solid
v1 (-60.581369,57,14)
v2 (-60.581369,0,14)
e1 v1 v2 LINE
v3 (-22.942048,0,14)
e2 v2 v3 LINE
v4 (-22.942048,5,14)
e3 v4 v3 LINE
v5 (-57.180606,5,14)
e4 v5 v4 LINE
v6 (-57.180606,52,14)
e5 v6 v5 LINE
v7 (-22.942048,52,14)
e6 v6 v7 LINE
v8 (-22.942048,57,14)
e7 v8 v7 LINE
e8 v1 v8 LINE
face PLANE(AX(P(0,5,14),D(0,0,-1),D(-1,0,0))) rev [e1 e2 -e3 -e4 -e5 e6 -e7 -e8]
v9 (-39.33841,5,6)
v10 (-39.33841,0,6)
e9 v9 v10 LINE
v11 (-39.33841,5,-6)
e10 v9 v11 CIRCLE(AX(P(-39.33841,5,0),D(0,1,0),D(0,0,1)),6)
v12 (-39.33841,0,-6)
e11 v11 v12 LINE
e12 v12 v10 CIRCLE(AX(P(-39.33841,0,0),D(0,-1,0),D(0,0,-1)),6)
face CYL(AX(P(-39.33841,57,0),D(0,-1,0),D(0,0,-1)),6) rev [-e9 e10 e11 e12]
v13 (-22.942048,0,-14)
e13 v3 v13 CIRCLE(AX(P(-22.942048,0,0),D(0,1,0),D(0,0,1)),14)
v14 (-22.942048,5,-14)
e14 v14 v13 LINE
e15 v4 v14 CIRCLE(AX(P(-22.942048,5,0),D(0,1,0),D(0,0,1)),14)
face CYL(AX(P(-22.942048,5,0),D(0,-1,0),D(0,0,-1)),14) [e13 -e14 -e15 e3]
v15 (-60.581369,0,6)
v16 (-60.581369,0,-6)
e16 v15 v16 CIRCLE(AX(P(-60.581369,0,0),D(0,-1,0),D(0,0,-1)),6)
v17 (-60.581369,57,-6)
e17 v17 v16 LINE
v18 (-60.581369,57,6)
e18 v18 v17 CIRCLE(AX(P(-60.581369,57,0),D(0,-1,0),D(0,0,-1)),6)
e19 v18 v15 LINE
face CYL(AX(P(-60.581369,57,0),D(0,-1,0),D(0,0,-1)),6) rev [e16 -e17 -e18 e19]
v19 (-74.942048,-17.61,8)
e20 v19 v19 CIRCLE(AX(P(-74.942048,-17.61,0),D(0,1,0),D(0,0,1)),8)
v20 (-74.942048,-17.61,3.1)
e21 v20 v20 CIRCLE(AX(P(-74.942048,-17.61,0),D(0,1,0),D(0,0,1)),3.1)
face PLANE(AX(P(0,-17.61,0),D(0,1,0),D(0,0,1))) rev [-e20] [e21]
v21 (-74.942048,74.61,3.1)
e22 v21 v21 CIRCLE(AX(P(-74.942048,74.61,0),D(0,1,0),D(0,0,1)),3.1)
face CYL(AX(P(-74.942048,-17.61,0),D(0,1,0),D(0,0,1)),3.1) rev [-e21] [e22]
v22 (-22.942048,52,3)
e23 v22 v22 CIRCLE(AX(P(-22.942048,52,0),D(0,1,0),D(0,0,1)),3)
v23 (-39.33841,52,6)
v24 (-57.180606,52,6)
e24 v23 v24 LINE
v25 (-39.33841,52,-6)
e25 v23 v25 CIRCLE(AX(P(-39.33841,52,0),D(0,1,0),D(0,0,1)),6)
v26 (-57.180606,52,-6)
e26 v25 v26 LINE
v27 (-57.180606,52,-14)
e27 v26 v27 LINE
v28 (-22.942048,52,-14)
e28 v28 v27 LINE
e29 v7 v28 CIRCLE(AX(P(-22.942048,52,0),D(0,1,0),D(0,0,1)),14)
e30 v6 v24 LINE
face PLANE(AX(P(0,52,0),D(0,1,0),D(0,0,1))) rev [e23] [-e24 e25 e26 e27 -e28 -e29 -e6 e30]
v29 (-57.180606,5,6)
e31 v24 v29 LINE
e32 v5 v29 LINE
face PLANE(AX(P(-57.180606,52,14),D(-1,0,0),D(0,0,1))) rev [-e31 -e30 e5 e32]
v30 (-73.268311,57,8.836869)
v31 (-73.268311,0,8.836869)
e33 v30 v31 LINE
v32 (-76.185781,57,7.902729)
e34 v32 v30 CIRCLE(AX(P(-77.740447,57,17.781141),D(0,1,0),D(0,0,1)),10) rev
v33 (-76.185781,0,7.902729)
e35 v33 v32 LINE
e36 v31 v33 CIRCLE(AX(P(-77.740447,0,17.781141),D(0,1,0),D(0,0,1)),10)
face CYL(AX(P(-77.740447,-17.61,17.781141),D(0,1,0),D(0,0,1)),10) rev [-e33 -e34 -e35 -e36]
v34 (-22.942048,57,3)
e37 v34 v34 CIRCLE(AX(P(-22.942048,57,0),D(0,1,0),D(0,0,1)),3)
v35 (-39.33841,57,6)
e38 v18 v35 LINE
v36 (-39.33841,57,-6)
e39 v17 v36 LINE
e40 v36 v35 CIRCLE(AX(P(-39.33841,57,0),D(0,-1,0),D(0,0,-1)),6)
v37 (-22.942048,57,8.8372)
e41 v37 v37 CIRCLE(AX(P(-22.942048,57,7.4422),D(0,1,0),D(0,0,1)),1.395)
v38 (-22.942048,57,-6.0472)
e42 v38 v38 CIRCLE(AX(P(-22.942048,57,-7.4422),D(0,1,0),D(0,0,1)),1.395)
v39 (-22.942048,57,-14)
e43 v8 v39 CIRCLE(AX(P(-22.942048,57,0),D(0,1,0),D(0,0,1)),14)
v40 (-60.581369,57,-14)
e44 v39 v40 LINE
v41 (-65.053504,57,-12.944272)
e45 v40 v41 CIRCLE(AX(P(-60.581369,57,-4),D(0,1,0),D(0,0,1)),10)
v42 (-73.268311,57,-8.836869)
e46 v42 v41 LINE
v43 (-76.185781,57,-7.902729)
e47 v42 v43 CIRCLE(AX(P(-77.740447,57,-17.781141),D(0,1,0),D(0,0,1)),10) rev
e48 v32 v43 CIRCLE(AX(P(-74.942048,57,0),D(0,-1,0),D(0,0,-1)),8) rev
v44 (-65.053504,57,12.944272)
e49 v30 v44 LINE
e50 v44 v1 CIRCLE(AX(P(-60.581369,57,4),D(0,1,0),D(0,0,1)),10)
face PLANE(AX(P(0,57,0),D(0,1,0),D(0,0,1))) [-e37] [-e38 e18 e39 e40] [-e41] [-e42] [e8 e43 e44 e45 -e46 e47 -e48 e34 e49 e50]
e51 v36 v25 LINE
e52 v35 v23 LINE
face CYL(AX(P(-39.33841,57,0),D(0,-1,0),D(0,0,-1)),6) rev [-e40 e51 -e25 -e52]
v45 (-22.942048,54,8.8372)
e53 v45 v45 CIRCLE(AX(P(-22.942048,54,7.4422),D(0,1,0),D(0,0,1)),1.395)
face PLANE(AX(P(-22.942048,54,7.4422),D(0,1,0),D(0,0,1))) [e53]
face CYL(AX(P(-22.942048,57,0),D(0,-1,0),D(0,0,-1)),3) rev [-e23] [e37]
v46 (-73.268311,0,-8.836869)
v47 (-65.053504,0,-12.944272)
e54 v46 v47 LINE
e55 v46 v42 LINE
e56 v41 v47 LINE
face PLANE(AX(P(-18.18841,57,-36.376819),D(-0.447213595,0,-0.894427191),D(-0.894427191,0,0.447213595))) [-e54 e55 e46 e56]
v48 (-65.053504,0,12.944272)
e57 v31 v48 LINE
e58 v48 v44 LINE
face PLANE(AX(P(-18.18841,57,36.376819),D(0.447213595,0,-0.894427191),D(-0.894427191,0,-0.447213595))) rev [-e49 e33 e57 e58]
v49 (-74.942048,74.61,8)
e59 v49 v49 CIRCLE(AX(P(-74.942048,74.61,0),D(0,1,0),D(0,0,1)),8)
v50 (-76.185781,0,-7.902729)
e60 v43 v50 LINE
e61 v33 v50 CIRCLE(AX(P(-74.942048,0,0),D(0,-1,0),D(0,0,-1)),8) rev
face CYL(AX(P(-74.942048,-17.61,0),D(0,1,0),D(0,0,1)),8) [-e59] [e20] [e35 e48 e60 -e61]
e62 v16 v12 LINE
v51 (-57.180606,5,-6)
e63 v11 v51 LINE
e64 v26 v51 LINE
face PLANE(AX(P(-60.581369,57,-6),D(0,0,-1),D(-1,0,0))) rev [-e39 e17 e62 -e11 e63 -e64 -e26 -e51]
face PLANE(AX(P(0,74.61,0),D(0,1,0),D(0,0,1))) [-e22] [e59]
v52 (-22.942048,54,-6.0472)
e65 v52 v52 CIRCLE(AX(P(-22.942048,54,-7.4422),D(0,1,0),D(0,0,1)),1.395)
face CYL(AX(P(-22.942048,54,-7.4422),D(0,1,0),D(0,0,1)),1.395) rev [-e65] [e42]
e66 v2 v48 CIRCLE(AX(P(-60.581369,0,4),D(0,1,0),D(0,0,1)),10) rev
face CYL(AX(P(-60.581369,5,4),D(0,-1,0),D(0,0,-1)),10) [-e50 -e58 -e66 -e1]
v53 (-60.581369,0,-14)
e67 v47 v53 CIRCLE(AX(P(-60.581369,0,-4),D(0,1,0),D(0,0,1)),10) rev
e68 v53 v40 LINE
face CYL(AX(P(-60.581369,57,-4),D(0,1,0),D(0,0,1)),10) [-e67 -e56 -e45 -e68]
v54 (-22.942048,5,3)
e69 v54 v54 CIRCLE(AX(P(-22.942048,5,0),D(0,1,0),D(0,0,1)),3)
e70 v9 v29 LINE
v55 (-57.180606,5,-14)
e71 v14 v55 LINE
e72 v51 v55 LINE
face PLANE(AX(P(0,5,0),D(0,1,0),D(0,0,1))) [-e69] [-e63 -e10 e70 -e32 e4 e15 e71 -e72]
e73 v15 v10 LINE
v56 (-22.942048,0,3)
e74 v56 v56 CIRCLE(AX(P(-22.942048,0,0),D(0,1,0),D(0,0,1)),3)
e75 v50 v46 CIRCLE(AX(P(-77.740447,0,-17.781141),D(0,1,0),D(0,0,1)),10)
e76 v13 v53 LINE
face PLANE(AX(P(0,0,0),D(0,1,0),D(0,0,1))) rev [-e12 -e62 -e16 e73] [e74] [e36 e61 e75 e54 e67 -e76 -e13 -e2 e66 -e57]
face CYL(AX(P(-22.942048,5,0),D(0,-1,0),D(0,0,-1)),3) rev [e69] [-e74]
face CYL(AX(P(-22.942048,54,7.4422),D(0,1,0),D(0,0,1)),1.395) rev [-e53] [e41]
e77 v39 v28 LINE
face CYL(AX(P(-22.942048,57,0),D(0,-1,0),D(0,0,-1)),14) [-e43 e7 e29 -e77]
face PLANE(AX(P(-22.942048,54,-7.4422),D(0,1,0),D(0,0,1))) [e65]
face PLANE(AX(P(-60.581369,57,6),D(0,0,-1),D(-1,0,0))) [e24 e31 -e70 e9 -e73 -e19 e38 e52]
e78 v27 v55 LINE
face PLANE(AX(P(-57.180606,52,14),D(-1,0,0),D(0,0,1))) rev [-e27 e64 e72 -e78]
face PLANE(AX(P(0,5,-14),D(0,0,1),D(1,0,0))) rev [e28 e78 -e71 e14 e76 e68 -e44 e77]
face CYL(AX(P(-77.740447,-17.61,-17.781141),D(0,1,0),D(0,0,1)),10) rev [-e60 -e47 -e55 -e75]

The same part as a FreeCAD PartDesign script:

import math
import FreeCAD as App
import Part
import Sketcher
from FreeCAD import Vector
Q = App.Units.Quantity


def edges_at(feature, points):
    """Names of the edges that pass closest to the given points."""
    edges = feature.Shape.Edges
    near = lambda p: min(range(len(edges)), key=lambda i: edges[i].distToShape(Part.Vertex(*p))[0])
    return sorted({f"Edge{near(p) + 1}" for p in points})


def add_polygon(sketch, points):
    """Adds a closed chain of lines whose ends are joined by coincident constraints."""
    first, n = sketch.GeometryCount, len(points)
    for a, b in zip(points, points[1:] + points[:1]):
        sketch.addGeometry(Part.LineSegment(App.Vector(*a, 0), App.Vector(*b, 0)), False)
    for i in range(n):
        sketch.addConstraint(Sketcher.Constraint("Coincident", first + i, 2, first + (i + 1) % n, 1))

doc = App.newDocument("Part")
body = doc.addObject("PartDesign::Body", "Body")

# Sketch on XZ plane
sketch1 = body.newObject("Sketcher::SketchObject", "Sketch")
sketch1.AttachmentSupport = (doc.getObject("XZ_Plane"), [""])
sketch1.MapMode = "FlatFace"
sketch1.addGeometry([
    Part.LineSegment(Vector(-62.9, 14, 0), Vector(-22.9, 14, 0)),  # 0
    Part.ArcOfCircle(Part.Circle(Vector(-22.9, 0, 0), Vector(0, 0, 1), 14), math.radians(-90), math.radians(90)),  # 1
    Part.LineSegment(Vector(-22.9, -14, 0), Vector(-62.9, -14, 0)),  # 2
    Part.LineSegment(Vector(-62.9, -14, 0), Vector(-62.9, 14, 0)),  # 3
    Part.Circle(Vector(-22.9, 0, 0), Vector(0, 0, 1), 3),  # 4
], False)
sketch1.addConstraint([
    Sketcher.Constraint("Tangent", 0, 2, 1, 2),
    Sketcher.Constraint("Tangent", 1, 1, 2, 1),
    Sketcher.Constraint("Coincident", 2, 2, 3, 1),
    Sketcher.Constraint("Coincident", 3, 2, 0, 1),
    Sketcher.Constraint("Horizontal", 0),
    Sketcher.Constraint("Horizontal", 2),
    Sketcher.Constraint("Vertical", 3),
    Sketcher.Constraint("Coincident", 4, 3, 1, 3),
    Sketcher.Constraint("PointOnObject", 1, 3, -1),
    Sketcher.Constraint("Diameter", 4, Q("6 mm")),
    Sketcher.Constraint("Radius", 1, Q("14 mm")),
    Sketcher.Constraint("DistanceX", 0, 1, 0, 2, Q("40 mm")),
    Sketcher.Constraint("DistanceX", 1, 3, -1, 1, Q("22.942048 mm")),
])
pad1 = body.newObject("PartDesign::Pad", "Pad")
pad1.Profile = sketch1
pad1.Length = 5
pad1.Reversed = True

# Sketch on XZ plane
sketch2 = body.newObject("Sketcher::SketchObject", "Sketch001")
sketch2.AttachmentSupport = (doc.getObject("XZ_Plane"), [""])
sketch2.MapMode = "FlatFace"
sketch2.AttachmentOffset = App.Placement(Vector(0, 0, -5), App.Rotation())
add_polygon(sketch2, [(-63, -14), (-63, 14), (-57, 14), (-57, -14)])  # lines 0-3
sketch2.addConstraint([
    Sketcher.Constraint("Vertical", 0),
    Sketcher.Constraint("Horizontal", 1),
    Sketcher.Constraint("Vertical", 2),
    Sketcher.Constraint("Horizontal", 3),
    Sketcher.Constraint("DistanceY", 0, 1, 0, 2, Q("28 mm")),
    Sketcher.Constraint("DistanceY", -1, 1, 0, 2, Q("14 mm")),
    Sketcher.Constraint("DistanceX", 1, 1, 1, 2, Q("5.761443 mm")),
    Sketcher.Constraint("DistanceX", 0, 2, -1, 1, Q("62.942048 mm")),
])
pad2 = body.newObject("PartDesign::Pad", "Pad001")
pad2.Profile = sketch2
pad2.Length = 47
pad2.Reversed = True

# Sketch on XZ plane
sketch3 = body.newObject("Sketcher::SketchObject", "Sketch002")
sketch3.AttachmentSupport = (doc.getObject("XZ_Plane"), [""])
sketch3.MapMode = "FlatFace"
sketch3.AttachmentOffset = App.Placement(Vector(0, 0, -52), App.Rotation())
sketch3.addGeometry([
    Part.LineSegment(Vector(-22.9, -14, 0), Vector(-62.9, -14, 0)),  # 0
    Part.LineSegment(Vector(-62.9, -14, 0), Vector(-62.9, 14, 0)),  # 1
    Part.LineSegment(Vector(-62.9, 14, 0), Vector(-22.9, 14, 0)),  # 2
    Part.ArcOfCircle(Part.Circle(Vector(-22.9, 0, 0), Vector(0, 0, 1), 14), math.radians(-90), math.radians(90)),  # 3
    Part.Circle(Vector(-22.9, 0, 0), Vector(0, 0, 1), 3),  # 4
], False)
sketch3.addConstraint([
    Sketcher.Constraint("Coincident", 0, 2, 1, 1),
    Sketcher.Constraint("Coincident", 1, 2, 2, 1),
    Sketcher.Constraint("Tangent", 2, 2, 3, 2),
    Sketcher.Constraint("Tangent", 3, 1, 0, 1),
    Sketcher.Constraint("Horizontal", 0),
    Sketcher.Constraint("Vertical", 1),
    Sketcher.Constraint("Horizontal", 2),
    Sketcher.Constraint("Coincident", 4, 3, 3, 3),
    Sketcher.Constraint("PointOnObject", 3, 3, -1),
    Sketcher.Constraint("Diameter", 4, Q("6 mm")),
    Sketcher.Constraint("Radius", 3, Q("14 mm")),
    Sketcher.Constraint("DistanceX", 0, 2, 0, 1, Q("40 mm")),
    Sketcher.Constraint("DistanceX", 3, 3, -1, 1, Q("22.942048 mm")),
])
pad3 = body.newObject("PartDesign::Pad", "Pad002")
pad3.Profile = sketch3
pad3.Length = 5
pad3.Reversed = True
body2 = doc.addObject("PartDesign::Body", "Body001")

# Sketch on XZ plane
sketch4 = body2.newObject("Sketcher::SketchObject", "Sketch003")
sketch4.AttachmentSupport = (doc.getObject("XZ_Plane001"), [""])
sketch4.MapMode = "FlatFace"
sketch4.AttachmentOffset = App.Placement(Vector(0, 0, -57), App.Rotation())
sketch4.addGeometry([
    Part.Circle(Vector(-74.9, 0, 0), Vector(0, 0, 1), 8),
    Part.Circle(Vector(-74.9, 0, 0), Vector(0, 0, 1), 3.1),
], False)
sketch4.addConstraint([
    Sketcher.Constraint("Coincident", 1, 3, 0, 3),
    Sketcher.Constraint("PointOnObject", 0, 3, -1),
    Sketcher.Constraint("Diameter", 0, Q("16 mm")),
    Sketcher.Constraint("Diameter", 1, Q("6.2 mm")),
    Sketcher.Constraint("DistanceX", 0, 3, -1, 1, Q("74.942048 mm")),
])
pad4 = body2.newObject("PartDesign::Pad", "Pad003")
pad4.Profile = sketch4
pad4.Type = "TwoLengths"
pad4.Length = 17.61
pad4.Length2 = 74.61
pad4.Reversed = True
body.AllowCompound = True
doc.recompute()

boolean = body.newObject("PartDesign::Boolean", "Boolean")
boolean.Type = "Fuse"
boolean.addObjects([body2])

# Sketch on XZ plane
sketch5 = body.newObject("Sketcher::SketchObject", "Sketch004")
sketch5.AttachmentSupport = (doc.getObject("XZ_Plane"), [""])
sketch5.MapMode = "FlatFace"
sketch5.addGeometry([
    Part.LineSegment(Vector(-63, 14, 0), Vector(-75, 8, 0)),  # 0
    Part.ArcOfCircle(Part.Circle(Vector(-75, 0, 0), Vector(0, 0, 1), 8), math.radians(0), math.radians(90)),  # 1
    Part.ArcOfCircle(Part.Circle(Vector(-75, 0, 0), Vector(0, 0, 1), 8), math.radians(-90), math.radians(0)),  # 2
    Part.LineSegment(Vector(-75, -8, 0), Vector(-63, -14, 0)),  # 3
    Part.LineSegment(Vector(-63, -14, 0), Vector(-63, 14, 0)),  # 4
], False)
sketch5.addConstraint([
    Sketcher.Constraint("Coincident", 0, 2, 1, 2),
    Sketcher.Constraint("Tangent", 1, 1, 2, 2),
    Sketcher.Constraint("Coincident", 2, 1, 3, 1),
    Sketcher.Constraint("Coincident", 3, 2, 4, 1),
    Sketcher.Constraint("Coincident", 4, 2, 0, 1),
    Sketcher.Constraint("Vertical", 4),
    Sketcher.Constraint("Equal", 1, 2),
    Sketcher.Constraint("Symmetric", 0, 2, 2, 1, -1),
    Sketcher.Constraint("PointOnObject", 1, 1, -1),
    Sketcher.Constraint("Vertical", 2, 3, 0, 2),
    Sketcher.Constraint("Equal", 0, 3),
    Sketcher.Constraint("Radius", 1, Q("8 mm")),
    Sketcher.Constraint("DistanceY", 4, 1, 4, 2, Q("28 mm")),
    Sketcher.Constraint("DistanceX", 2, 1, 3, 2, Q("12 mm")),
    Sketcher.Constraint("DistanceX", 1, 3, -1, 1, Q("74.942048 mm")),
])
pad5 = body.newObject("PartDesign::Pad", "Pad004")
pad5.Profile = sketch5
pad5.Length = 57
pad5.Reversed = True
doc.recompute()

fillet = body.newObject("PartDesign::Fillet", "Fillet")
fillet.Base = (pad5, edges_at(pad5, [(-62.942, 28.5, 14), (-62.942, 28.5, -14)]))
fillet.Radius = 10
doc.recompute()

fillet2 = body.newObject("PartDesign::Fillet", "Fillet001")
fillet2.Base = (fillet, edges_at(fillet, [(-74.942, 28.5, 8), (-74.942, 28.5, -8)]))
fillet2.Radius = 10

# Sketch on XZ plane
sketch6 = body.newObject("Sketcher::SketchObject", "Sketch005")
sketch6.AttachmentSupport = (doc.getObject("XZ_Plane"), [""])
sketch6.MapMode = "FlatFace"
sketch6.addGeometry([
    Part.LineSegment(Vector(-39, 6, 0), Vector(-61, 6, 0)),
    Part.ArcOfCircle(Part.Circle(Vector(-61, 0, 0), Vector(0, 0, 1), 6), math.radians(90), math.radians(270)),
    Part.LineSegment(Vector(-61, -6, 0), Vector(-39, -6, 0)),
    Part.ArcOfCircle(Part.Circle(Vector(-39, 0, 0), Vector(0, 0, 1), 6), math.radians(-90), math.radians(90)),
], False)
sketch6.addConstraint([
    Sketcher.Constraint("Tangent", 0, 2, 1, 1),
    Sketcher.Constraint("Tangent", 1, 2, 2, 1),
    Sketcher.Constraint("Tangent", 2, 2, 3, 1),
    Sketcher.Constraint("Tangent", 3, 2, 0, 1),
    Sketcher.Constraint("Horizontal", 0),
    Sketcher.Constraint("Horizontal", 2),
    Sketcher.Constraint("PointOnObject", 1, 3, -1),
    Sketcher.Constraint("Radius", 1, Q("6 mm")),
    Sketcher.Constraint("DistanceX", 0, 2, 0, 1, Q("21.242959 mm")),
    Sketcher.Constraint("DistanceX", 1, 3, -1, 1, Q("60.581369 mm")),
])
pocket1 = body.newObject("PartDesign::Pocket", "Pocket")
pocket1.Profile = sketch6
pocket1.Length = 57

# Sketch on XZ plane
sketch7 = body.newObject("Sketcher::SketchObject", "Sketch006")
sketch7.AttachmentSupport = (doc.getObject("XZ_Plane"), [""])
sketch7.MapMode = "FlatFace"
sketch7.AttachmentOffset = App.Placement(Vector(0, 0, -57), App.Rotation())
sketch7.addGeometry([
    Part.Circle(Vector(-22.9, -7.4, 0), Vector(0, 0, 1), 1.4),
    Part.Circle(Vector(-22.9, 7.4, 0), Vector(0, 0, 1), 1.4),
], False)
sketch7.addConstraint([
    Sketcher.Constraint("Equal", 0, 1),
    Sketcher.Constraint("Symmetric", 0, 3, 1, 3, -1),
    Sketcher.Constraint("Diameter", 0, Q("2.79 mm")),
    Sketcher.Constraint("DistanceY", 0, 3, -1, 1, Q("7.4422 mm")),
    Sketcher.Constraint("DistanceX", 0, 3, -1, 1, Q("22.942048 mm")),
])
pocket2 = body.newObject("PartDesign::Pocket", "Pocket001")
pocket2.Profile = sketch7
pocket2.Length = 3
pocket2.Reversed = True

doc.recompute()
